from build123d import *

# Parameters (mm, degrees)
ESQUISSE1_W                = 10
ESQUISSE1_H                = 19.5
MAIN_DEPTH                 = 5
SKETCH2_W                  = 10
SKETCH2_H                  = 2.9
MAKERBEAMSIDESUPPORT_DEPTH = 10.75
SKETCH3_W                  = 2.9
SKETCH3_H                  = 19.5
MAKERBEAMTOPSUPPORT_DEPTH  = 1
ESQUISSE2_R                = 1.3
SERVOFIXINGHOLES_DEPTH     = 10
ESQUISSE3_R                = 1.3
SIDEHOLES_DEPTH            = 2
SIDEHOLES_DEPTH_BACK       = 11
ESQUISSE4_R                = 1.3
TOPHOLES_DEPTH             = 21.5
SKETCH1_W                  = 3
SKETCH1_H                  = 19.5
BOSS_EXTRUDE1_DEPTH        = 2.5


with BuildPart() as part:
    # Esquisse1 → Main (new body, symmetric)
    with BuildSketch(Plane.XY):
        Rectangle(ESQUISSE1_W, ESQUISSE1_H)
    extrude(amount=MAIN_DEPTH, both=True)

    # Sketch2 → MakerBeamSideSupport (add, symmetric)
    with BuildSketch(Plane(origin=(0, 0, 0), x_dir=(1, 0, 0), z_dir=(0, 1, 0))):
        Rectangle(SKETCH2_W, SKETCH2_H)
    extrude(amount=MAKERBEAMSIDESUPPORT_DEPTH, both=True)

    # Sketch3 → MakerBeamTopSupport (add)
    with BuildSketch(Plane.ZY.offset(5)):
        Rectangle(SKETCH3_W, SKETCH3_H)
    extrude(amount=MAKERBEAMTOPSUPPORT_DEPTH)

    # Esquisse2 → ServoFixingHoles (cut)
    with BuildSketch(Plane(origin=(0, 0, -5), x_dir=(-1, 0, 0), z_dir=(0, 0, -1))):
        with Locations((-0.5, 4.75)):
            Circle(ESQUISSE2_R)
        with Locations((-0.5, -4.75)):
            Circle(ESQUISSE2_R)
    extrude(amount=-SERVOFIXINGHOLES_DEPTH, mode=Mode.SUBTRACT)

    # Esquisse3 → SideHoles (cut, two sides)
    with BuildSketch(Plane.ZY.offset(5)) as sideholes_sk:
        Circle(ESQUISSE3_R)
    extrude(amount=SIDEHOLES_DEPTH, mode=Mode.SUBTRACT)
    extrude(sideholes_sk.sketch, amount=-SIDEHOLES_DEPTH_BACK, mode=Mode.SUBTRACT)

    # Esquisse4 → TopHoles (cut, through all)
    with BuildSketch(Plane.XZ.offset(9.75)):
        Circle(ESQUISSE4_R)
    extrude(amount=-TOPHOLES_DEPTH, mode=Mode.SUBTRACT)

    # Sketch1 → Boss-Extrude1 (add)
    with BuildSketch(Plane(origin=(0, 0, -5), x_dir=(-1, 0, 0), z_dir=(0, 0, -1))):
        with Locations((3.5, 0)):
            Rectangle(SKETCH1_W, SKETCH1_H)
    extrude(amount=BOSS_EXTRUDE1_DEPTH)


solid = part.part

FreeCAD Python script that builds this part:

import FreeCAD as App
import Part
import Sketcher

doc = App.newDocument("Part")
body = doc.addObject("PartDesign::Body", "Body")

# Sketch on XY plane
sketch1 = body.newObject("Sketcher::SketchObject", "Sketch")
sketch1.AttachmentSupport = (doc.getObject("XY_Plane"), [""])
sketch1.MapMode = "FlatFace"
sketch1.addGeometry(Part.LineSegment(App.Vector(-5, 9.75, 0), App.Vector(-5, -9.75, 0)), False)
sketch1.addGeometry(Part.LineSegment(App.Vector(-5, -9.75, 0), App.Vector(5, -9.75, 0)), False)
sketch1.addGeometry(Part.LineSegment(App.Vector(5, -9.75, 0), App.Vector(5, 9.75, 0)), False)
sketch1.addGeometry(Part.LineSegment(App.Vector(5, 9.75, 0), App.Vector(-5, 9.75, 0)), False)
sketch1.addConstraint(Sketcher.Constraint("Coincident", 0, 2, 1, 1))
sketch1.addConstraint(Sketcher.Constraint("Coincident", 1, 2, 2, 1))
sketch1.addConstraint(Sketcher.Constraint("Coincident", 2, 2, 3, 1))
sketch1.addConstraint(Sketcher.Constraint("Coincident", 3, 2, 0, 1))
sketch1.addConstraint(Sketcher.Constraint("Vertical", 0))
sketch1.addConstraint(Sketcher.Constraint("Horizontal", 1))
sketch1.addConstraint(Sketcher.Constraint("Vertical", 2))
sketch1.addConstraint(Sketcher.Constraint("Horizontal", 3))
sketch1.addConstraint(Sketcher.Constraint("Symmetric", 0, 2, 2, 2, -1, 1))
sketch1.addConstraint(Sketcher.Constraint("DistanceX", 1, 1, 1, 2, 10.0))
sketch1.addConstraint(Sketcher.Constraint("DistanceY", 0, 2, 0, 1, 19.5))
pad1 = body.newObject("PartDesign::Pad", "Pad")
pad1.Profile = sketch1
pad1.Length = 10
pad1.Midplane = True

# Sketch on XZ plane
sketch2 = body.newObject("Sketcher::SketchObject", "Sketch001")
sketch2.AttachmentSupport = (doc.getObject("XZ_Plane"), [""])
sketch2.MapMode = "FlatFace"
sketch2.addGeometry(Part.LineSegment(App.Vector(-5, -1.45, 0), App.Vector(-5, 1.45, 0)), False)
sketch2.addGeometry(Part.LineSegment(App.Vector(-5, 1.45, 0), App.Vector(5, 1.45, 0)), False)
sketch2.addGeometry(Part.LineSegment(App.Vector(5, 1.45, 0), App.Vector(5, -1.45, 0)), False)
sketch2.addGeometry(Part.LineSegment(App.Vector(5, -1.45, 0), App.Vector(-5, -1.45, 0)), False)
sketch2.addConstraint(Sketcher.Constraint("Coincident", 0, 2, 1, 1))
sketch2.addConstraint(Sketcher.Constraint("Coincident", 1, 2, 2, 1))
sketch2.addConstraint(Sketcher.Constraint("Coincident", 2, 2, 3, 1))
sketch2.addConstraint(Sketcher.Constraint("Coincident", 3, 2, 0, 1))
sketch2.addConstraint(Sketcher.Constraint("Vertical", 0))
sketch2.addConstraint(Sketcher.Constraint("Horizontal", 1))
sketch2.addConstraint(Sketcher.Constraint("Vertical", 2))
sketch2.addConstraint(Sketcher.Constraint("Horizontal", 3))
sketch2.addConstraint(Sketcher.Constraint("Symmetric", 0, 2, 2, 2, -1, 1))
sketch2.addConstraint(Sketcher.Constraint("DistanceX", 1, 1, 1, 2, 10.0))
sketch2.addConstraint(Sketcher.Constraint("DistanceY", 0, 1, 0, 2, 2.9))
pad2 = body.newObject("PartDesign::Pad", "Pad001")
pad2.Profile = sketch2
pad2.Length = 21.5
pad2.Midplane = True

# Sketch on YZ plane
sketch3 = body.newObject("Sketcher::SketchObject", "Sketch002")
sketch3.AttachmentSupport = (doc.getObject("YZ_Plane"), [""])
sketch3.MapMode = "FlatFace"
sketch3.AttachmentOffset = App.Placement(App.Vector(0, 0, -5), App.Rotation())
sketch3.addGeometry(Part.LineSegment(App.Vector(9.75, -1.45, 0), App.Vector(-9.75, -1.45, 0)), False)
sketch3.addGeometry(Part.LineSegment(App.Vector(-9.75, -1.45, 0), App.Vector(-9.75, 1.45, 0)), False)
sketch3.addGeometry(Part.LineSegment(App.Vector(-9.75, 1.45, 0), App.Vector(9.75, 1.45, 0)), False)
sketch3.addGeometry(Part.LineSegment(App.Vector(9.75, 1.45, 0), App.Vector(9.75, -1.45, 0)), False)
sketch3.addConstraint(Sketcher.Constraint("Coincident", 0, 2, 1, 1))
sketch3.addConstraint(Sketcher.Constraint("Coincident", 1, 2, 2, 1))
sketch3.addConstraint(Sketcher.Constraint("Coincident", 2, 2, 3, 1))
sketch3.addConstraint(Sketcher.Constraint("Coincident", 3, 2, 0, 1))
sketch3.addConstraint(Sketcher.Constraint("Horizontal", 0))
sketch3.addConstraint(Sketcher.Constraint("Vertical", 1))
sketch3.addConstraint(Sketcher.Constraint("Horizontal", 2))
sketch3.addConstraint(Sketcher.Constraint("Vertical", 3))
sketch3.addConstraint(Sketcher.Constraint("Symmetric", 0, 2, 2, 2, -1, 1))
sketch3.addConstraint(Sketcher.Constraint("DistanceX", 0, 2, 0, 1, 19.5))
sketch3.addConstraint(Sketcher.Constraint("DistanceY", 1, 1, 1, 2, 2.9))
pad3 = body.newObject("PartDesign::Pad", "Pad002")
pad3.Profile = sketch3
pad3.Length = 1
pad3.Reversed = True

# Sketch on XY plane
sketch4 = body.newObject("Sketcher::SketchObject", "Sketch003")
sketch4.AttachmentSupport = (doc.getObject("XY_Plane"), [""])
sketch4.MapMode = "FlatFace"
sketch4.AttachmentOffset = App.Placement(App.Vector(0, 0, -5), App.Rotation())
sketch4.addGeometry(Part.Circle(App.Vector(0.5, 4.75, 0), App.Vector(0, 0, 1), 1.3), False)
sketch4.addGeometry(Part.Circle(App.Vector(0.5, -4.75, 0), App.Vector(0, 0, 1), 1.3), False)
sketch4.addConstraint(Sketcher.Constraint("Equal", 0, 1))
sketch4.addConstraint(Sketcher.Constraint("Symmetric", 0, 3, 1, 3, -1))
sketch4.addConstraint(Sketcher.Constraint("Diameter", 0, 2.6))
sketch4.addConstraint(Sketcher.Constraint("DistanceX", -1, 1, 0, 3, 0.5))
sketch4.addConstraint(Sketcher.Constraint("DistanceY", 1, 3, 0, 3, 9.5))
pocket1 = body.newObject("PartDesign::Pocket", "Pocket")
pocket1.Profile = sketch4
pocket1.Length = 10
pocket1.Reversed = True

# Sketch on YZ plane
sketch5 = body.newObject("Sketcher::SketchObject", "Sketch004")
sketch5.AttachmentSupport = (doc.getObject("YZ_Plane"), [""])
sketch5.MapMode = "FlatFace"
sketch5.AttachmentOffset = App.Placement(App.Vector(0, 0, -5), App.Rotation())
sketch5.addGeometry(Part.Circle(App.Vector(0, 0, 0), App.Vector(0, 0, 1), 1.3), False)
sketch5.addConstraint(Sketcher.Constraint("Coincident", 0, 3, -1, 1))
sketch5.addConstraint(Sketcher.Constraint("Diameter", 0, 2.6))
pocket2 = body.newObject("PartDesign::Pocket", "Pocket001")
pocket2.Profile = sketch5
pocket2.Type = "ThroughAll"
pocket2.Midplane = True

# Sketch on XZ plane
sketch6 = body.newObject("Sketcher::SketchObject", "Sketch005")
sketch6.AttachmentSupport = (doc.getObject("XZ_Plane"), [""])
sketch6.MapMode = "FlatFace"
sketch6.AttachmentOffset = App.Placement(App.Vector(0, 0, 9.75), App.Rotation())
sketch6.addGeometry(Part.Circle(App.Vector(0, 0, 0), App.Vector(0, 0, 1), 1.3), False)
sketch6.addConstraint(Sketcher.Constraint("Coincident", 0, 3, -1, 1))
sketch6.addConstraint(Sketcher.Constraint("Diameter", 0, 2.6))
pocket3 = body.newObject("PartDesign::Pocket", "Pocket002")
pocket3.Profile = sketch6
pocket3.Type = "ThroughAll"

# Sketch on XY plane
sketch7 = body.newObject("Sketcher::SketchObject", "Sketch006")
sketch7.AttachmentSupport = (doc.getObject("XY_Plane"), [""])
sketch7.MapMode = "FlatFace"
sketch7.AttachmentOffset = App.Placement(App.Vector(0, 0, -5), App.Rotation())
sketch7.addGeometry(Part.LineSegment(App.Vector(-2, 9.75, 0), App.Vector(-2, -9.75, 0)), False)
sketch7.addGeometry(Part.LineSegment(App.Vector(-2, -9.75, 0), App.Vector(-5, -9.75, 0)), False)
sketch7.addGeometry(Part.LineSegment(App.Vector(-5, -9.75, 0), App.Vector(-5, 9.75, 0)), False)
sketch7.addGeometry(Part.LineSegment(App.Vector(-5, 9.75, 0), App.Vector(-2, 9.75, 0)), False)
sketch7.addConstraint(Sketcher.Constraint("Coincident", 0, 2, 1, 1))
sketch7.addConstraint(Sketcher.Constraint("Coincident", 1, 2, 2, 1))
sketch7.addConstraint(Sketcher.Constraint("Coincident", 2, 2, 3, 1))
sketch7.addConstraint(Sketcher.Constraint("Coincident", 3, 2, 0, 1))
sketch7.addConstraint(Sketcher.Constraint("Vertical", 0))
sketch7.addConstraint(Sketcher.Constraint("Horizontal", 1))
sketch7.addConstraint(Sketcher.Constraint("Vertical", 2))
sketch7.addConstraint(Sketcher.Constraint("Horizontal", 3))
sketch7.addConstraint(Sketcher.Constraint("DistanceX", 1, 2, 1, 1, 3.0))
sketch7.addConstraint(Sketcher.Constraint("DistanceY", 0, 2, 0, 1, 19.5))
sketch7.addConstraint(Sketcher.Constraint("DistanceX", 0, 2, -1, 1, 2.0))
sketch7.addConstraint(Sketcher.Constraint("DistanceY", 0, 2, -1, 1, 9.75))
pad4 = body.newObject("PartDesign::Pad", "Pad003")
pad4.Profile = sketch7
pad4.Length = 2.5
pad4.Reversed = True

doc.recompute()
